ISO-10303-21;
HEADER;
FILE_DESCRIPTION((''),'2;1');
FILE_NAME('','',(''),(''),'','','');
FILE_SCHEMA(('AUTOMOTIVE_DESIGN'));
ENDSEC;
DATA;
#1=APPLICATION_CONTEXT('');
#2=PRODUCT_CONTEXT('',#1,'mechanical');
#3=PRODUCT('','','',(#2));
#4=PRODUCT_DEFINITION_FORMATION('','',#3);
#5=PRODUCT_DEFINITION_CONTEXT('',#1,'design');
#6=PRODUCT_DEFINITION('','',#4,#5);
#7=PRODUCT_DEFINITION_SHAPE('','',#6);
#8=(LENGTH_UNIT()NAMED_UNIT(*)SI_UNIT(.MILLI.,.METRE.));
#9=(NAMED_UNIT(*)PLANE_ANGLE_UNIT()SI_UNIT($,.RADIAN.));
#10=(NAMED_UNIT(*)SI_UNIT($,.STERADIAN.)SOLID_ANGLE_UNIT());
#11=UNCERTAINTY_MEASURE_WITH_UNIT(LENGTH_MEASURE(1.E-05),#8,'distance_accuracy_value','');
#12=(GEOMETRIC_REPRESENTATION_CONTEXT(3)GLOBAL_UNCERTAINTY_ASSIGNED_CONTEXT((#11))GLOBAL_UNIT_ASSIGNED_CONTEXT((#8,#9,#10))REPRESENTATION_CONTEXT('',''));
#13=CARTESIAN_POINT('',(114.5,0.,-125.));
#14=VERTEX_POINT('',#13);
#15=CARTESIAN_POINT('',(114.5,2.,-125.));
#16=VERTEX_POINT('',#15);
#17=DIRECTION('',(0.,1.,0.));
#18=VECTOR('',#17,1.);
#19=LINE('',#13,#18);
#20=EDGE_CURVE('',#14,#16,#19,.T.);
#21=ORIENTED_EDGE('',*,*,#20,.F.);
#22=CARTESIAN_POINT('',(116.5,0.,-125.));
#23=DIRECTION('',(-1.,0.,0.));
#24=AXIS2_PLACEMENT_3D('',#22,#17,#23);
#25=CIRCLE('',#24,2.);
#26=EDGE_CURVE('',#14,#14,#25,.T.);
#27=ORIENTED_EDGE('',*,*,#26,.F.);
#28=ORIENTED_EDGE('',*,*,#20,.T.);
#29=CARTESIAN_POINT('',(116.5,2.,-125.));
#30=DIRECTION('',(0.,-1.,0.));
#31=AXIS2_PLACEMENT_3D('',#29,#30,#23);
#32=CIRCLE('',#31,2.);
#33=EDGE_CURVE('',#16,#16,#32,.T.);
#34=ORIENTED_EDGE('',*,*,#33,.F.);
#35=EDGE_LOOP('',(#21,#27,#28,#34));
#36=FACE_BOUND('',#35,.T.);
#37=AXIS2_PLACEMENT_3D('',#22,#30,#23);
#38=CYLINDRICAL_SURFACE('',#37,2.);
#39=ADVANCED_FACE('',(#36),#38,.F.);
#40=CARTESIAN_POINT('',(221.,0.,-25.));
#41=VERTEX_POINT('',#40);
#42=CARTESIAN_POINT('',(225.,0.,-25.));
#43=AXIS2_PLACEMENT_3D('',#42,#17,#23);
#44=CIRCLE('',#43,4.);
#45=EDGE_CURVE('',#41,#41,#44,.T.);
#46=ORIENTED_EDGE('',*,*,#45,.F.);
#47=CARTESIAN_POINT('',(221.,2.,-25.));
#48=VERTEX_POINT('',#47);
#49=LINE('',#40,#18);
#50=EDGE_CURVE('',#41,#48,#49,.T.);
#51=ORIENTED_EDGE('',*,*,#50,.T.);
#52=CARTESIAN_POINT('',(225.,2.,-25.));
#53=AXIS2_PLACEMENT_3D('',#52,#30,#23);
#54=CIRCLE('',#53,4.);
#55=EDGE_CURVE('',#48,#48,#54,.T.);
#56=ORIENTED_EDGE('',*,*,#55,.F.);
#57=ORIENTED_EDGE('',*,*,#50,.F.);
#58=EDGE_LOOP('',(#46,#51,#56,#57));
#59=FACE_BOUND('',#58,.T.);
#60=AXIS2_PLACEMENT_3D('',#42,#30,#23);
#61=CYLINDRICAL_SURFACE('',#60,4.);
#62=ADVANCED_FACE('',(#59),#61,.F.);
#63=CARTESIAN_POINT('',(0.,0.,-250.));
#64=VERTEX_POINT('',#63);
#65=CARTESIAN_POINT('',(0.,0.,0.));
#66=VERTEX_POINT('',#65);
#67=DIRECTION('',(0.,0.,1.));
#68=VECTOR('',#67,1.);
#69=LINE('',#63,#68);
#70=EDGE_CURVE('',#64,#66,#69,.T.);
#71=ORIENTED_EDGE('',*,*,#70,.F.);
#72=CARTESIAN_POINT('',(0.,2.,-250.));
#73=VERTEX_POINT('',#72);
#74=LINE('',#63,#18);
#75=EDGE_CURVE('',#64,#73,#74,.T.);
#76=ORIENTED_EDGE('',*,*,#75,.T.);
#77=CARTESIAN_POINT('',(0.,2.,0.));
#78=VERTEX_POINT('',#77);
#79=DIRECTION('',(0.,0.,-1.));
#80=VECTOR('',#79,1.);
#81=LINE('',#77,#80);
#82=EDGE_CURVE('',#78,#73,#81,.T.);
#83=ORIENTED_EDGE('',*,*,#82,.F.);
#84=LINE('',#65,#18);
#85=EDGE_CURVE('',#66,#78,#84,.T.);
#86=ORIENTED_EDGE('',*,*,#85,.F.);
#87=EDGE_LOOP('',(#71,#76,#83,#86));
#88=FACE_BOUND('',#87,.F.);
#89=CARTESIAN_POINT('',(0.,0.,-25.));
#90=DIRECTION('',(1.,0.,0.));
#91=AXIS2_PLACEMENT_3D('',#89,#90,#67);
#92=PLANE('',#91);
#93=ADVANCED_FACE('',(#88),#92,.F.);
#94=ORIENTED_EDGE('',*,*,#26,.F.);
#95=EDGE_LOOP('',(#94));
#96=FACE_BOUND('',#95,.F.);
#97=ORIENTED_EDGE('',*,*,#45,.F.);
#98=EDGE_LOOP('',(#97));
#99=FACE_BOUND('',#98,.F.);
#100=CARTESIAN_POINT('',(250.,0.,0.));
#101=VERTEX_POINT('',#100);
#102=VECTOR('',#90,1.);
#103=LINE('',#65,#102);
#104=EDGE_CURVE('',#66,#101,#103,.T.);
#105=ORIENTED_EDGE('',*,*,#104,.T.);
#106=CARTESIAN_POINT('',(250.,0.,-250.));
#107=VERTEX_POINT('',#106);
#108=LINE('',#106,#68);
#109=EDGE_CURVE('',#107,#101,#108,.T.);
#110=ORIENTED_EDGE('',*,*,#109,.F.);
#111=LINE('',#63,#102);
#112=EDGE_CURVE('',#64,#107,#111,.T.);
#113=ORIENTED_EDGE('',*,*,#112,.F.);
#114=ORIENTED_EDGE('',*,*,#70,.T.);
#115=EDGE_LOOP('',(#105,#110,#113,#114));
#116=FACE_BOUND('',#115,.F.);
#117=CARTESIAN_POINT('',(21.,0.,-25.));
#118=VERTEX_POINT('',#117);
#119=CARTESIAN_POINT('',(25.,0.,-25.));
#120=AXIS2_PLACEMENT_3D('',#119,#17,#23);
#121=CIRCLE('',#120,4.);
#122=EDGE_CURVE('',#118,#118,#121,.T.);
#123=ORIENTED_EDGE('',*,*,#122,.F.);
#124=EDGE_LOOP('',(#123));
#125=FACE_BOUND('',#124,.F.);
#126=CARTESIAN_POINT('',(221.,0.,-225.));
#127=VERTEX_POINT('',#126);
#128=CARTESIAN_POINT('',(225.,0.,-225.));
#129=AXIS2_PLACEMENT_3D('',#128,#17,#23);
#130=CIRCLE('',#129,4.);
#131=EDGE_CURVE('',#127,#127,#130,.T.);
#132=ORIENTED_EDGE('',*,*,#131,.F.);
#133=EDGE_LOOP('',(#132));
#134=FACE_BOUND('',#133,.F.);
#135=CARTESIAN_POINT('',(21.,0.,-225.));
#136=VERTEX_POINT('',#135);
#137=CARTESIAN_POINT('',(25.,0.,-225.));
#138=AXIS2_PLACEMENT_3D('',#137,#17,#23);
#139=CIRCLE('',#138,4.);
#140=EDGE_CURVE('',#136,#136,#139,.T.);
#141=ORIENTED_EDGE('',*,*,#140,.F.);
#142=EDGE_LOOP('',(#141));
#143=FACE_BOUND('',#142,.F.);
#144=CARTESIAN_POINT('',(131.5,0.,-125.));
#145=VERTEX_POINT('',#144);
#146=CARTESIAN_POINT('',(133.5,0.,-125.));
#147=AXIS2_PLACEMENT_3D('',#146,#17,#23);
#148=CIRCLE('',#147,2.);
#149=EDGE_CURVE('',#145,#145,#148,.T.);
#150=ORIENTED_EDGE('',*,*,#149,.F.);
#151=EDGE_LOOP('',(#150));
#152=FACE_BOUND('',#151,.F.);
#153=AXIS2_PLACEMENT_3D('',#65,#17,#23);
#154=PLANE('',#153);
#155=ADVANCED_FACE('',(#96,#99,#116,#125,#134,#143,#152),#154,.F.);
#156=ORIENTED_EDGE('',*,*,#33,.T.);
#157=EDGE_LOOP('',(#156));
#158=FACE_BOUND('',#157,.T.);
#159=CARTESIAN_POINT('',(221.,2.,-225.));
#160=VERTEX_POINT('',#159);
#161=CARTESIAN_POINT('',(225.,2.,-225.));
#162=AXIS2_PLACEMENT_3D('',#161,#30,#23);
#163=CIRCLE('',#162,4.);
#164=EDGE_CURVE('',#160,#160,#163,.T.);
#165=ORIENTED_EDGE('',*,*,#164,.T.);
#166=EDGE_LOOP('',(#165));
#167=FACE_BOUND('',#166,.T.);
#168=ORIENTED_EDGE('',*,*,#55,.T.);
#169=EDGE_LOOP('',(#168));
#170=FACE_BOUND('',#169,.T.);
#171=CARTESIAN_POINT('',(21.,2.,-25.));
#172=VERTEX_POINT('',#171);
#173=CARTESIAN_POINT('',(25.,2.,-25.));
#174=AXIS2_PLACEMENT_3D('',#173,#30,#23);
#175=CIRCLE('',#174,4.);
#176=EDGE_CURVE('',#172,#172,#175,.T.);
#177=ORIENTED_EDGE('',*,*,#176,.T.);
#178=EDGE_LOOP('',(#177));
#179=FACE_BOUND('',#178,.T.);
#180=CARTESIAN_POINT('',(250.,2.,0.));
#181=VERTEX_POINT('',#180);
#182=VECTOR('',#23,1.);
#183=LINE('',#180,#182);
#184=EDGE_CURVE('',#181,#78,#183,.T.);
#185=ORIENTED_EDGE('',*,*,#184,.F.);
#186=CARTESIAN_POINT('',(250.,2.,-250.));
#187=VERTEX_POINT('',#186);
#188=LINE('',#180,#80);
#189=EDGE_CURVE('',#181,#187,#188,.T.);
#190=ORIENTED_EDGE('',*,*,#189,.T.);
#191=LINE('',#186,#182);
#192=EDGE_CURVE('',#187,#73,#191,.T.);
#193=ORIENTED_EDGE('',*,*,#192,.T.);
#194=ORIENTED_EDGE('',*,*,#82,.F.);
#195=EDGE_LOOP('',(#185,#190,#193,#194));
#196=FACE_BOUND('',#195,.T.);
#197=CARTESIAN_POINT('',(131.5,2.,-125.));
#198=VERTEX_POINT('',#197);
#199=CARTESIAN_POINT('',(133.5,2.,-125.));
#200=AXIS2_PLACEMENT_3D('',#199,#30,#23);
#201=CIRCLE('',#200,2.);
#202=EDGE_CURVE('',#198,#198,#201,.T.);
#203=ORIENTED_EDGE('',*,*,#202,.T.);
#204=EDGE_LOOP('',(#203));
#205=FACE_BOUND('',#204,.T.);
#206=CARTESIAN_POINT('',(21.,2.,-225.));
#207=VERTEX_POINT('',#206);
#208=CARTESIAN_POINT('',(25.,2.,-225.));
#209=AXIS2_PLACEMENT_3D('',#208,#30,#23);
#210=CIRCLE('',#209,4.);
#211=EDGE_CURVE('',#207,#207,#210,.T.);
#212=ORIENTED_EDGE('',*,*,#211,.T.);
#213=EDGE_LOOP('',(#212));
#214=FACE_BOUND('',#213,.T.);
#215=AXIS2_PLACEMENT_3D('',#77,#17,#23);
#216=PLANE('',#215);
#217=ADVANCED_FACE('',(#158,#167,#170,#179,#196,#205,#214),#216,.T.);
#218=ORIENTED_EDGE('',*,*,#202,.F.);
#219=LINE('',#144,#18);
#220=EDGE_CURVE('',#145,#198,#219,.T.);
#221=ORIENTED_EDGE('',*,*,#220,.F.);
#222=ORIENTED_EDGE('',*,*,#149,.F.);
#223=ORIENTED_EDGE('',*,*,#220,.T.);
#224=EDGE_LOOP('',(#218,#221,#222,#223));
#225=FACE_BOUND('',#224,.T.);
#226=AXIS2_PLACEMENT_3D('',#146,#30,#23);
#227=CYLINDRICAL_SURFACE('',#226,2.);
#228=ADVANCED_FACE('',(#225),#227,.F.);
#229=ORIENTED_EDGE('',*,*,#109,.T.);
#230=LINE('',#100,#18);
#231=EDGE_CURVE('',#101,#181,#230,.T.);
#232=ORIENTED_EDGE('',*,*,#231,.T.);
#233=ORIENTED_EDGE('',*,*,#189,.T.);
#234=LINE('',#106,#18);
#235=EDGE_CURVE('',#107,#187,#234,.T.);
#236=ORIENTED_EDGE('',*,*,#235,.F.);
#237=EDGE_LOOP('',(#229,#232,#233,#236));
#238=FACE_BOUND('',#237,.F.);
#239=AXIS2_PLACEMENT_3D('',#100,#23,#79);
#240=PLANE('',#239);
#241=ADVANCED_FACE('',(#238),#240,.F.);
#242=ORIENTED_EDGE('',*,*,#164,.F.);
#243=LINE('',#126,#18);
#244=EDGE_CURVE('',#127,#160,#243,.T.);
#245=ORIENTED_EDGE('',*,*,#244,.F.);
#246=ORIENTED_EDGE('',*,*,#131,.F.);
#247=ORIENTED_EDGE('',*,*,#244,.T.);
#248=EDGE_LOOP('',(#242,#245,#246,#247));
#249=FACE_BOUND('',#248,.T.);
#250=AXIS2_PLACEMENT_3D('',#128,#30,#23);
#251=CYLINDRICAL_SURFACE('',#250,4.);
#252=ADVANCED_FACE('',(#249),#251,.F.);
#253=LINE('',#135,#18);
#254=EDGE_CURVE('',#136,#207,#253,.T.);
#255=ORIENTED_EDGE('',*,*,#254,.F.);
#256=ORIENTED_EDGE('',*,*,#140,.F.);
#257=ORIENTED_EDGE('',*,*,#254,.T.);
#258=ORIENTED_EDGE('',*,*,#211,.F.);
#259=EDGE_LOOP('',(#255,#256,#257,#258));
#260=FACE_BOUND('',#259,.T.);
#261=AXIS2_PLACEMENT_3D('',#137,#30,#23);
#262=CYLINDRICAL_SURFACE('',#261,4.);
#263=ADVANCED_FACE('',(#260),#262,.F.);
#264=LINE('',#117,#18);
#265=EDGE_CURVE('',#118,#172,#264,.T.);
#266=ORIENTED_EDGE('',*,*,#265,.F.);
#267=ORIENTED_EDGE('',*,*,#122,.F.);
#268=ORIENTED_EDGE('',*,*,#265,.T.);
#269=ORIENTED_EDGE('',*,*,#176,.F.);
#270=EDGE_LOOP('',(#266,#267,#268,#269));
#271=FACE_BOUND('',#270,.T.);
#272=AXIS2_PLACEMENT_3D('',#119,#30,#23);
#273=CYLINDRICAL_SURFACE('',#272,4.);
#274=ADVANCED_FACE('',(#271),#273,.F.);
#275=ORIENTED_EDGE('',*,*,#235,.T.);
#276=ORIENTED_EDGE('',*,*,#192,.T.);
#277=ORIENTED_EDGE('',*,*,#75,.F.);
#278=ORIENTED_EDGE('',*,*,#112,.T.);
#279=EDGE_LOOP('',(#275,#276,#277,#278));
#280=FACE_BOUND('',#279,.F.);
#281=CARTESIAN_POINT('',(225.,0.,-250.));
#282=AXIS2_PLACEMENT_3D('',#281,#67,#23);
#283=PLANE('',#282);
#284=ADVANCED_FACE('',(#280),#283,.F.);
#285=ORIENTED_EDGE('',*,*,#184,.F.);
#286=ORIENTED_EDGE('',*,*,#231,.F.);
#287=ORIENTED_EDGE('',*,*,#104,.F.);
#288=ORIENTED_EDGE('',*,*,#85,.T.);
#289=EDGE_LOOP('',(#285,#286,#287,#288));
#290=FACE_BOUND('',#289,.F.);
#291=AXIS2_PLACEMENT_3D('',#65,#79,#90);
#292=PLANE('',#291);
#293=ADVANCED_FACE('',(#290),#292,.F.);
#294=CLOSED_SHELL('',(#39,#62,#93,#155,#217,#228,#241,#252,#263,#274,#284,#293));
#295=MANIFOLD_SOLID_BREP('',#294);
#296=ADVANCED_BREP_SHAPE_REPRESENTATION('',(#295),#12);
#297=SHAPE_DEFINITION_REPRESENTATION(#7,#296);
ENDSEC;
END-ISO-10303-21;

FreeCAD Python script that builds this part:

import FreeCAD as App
import Part
import Sketcher
Q = App.Units.Quantity


def add_polygon(sketch, points):
    """Adds a closed chain of lines whose ends are joined by coincident constraints."""
    first, n = sketch.GeometryCount, len(points)
    for a, b in zip(points, points[1:] + points[:1]):
        sketch.addGeometry(Part.LineSegment(App.Vector(*a, 0), App.Vector(*b, 0)), False)
    for i in range(n):
        sketch.addConstraint(Sketcher.Constraint("Coincident", first + i, 2, first + (i + 1) % n, 1))

doc = App.newDocument("Part")
body = doc.addObject("PartDesign::Body", "Body")

sketch1 = body.newObject("Sketcher::SketchObject", "Sketch")
sketch1.AttachmentSupport = (doc.getObject("XZ_Plane"), [""])
sketch1.MapMode = "FlatFace"
add_polygon(sketch1, [(0, 0), (250, 0), (250, -250), (0, -250)])
sketch1.addGeometry(Part.Circle(App.Vector(25, -25, 0), App.Vector(0, 0, 1), 4), False)
sketch1.addGeometry(Part.Circle(App.Vector(225, -25, 0), App.Vector(0, 0, 1), 4), False)
sketch1.addGeometry(Part.Circle(App.Vector(225, -225, 0), App.Vector(0, 0, 1), 4), False)
sketch1.addGeometry(Part.Circle(App.Vector(25, -225, 0), App.Vector(0, 0, 1), 4), False)
sketch1.addGeometry(Part.Circle(App.Vector(116.5, -125, 0), App.Vector(0, 0, 1), 2), False)
sketch1.addGeometry(Part.Circle(App.Vector(133.5, -125, 0), App.Vector(0, 0, 1), 2), False)
sketch1.addConstraint(Sketcher.Constraint("Horizontal", 0))
sketch1.addConstraint(Sketcher.Constraint("Vertical", 1))
sketch1.addConstraint(Sketcher.Constraint("Horizontal", 2))
sketch1.addConstraint(Sketcher.Constraint("Vertical", 3))
sketch1.addConstraint(Sketcher.Constraint("Coincident", 3, 2, -1, 1))
sketch1.addConstraint(Sketcher.Constraint("Equal", 4, 5))
sketch1.addConstraint(Sketcher.Constraint("Equal", 5, 6))
sketch1.addConstraint(Sketcher.Constraint("Equal", 6, 7))
sketch1.addConstraint(Sketcher.Constraint("Equal", 8, 9))
sketch1.addConstraint(Sketcher.Constraint("Horizontal", 4, 3, 5, 3))
sketch1.addConstraint(Sketcher.Constraint("Horizontal", 6, 3, 7, 3))
sketch1.addConstraint(Sketcher.Constraint("Horizontal", 8, 3, 9, 3))
sketch1.addConstraint(Sketcher.Constraint("Vertical", 5, 3, 6, 3))
sketch1.addConstraint(Sketcher.Constraint("Vertical", 4, 3, 7, 3))
sketch1.addConstraint(Sketcher.Constraint("Equal", 2, 1))
sketch1.addConstraint(Sketcher.Constraint("Diameter", 4, Q("8 mm")))
sketch1.addConstraint(Sketcher.Constraint("Diameter", 8, Q("4 mm")))
sketch1.addConstraint(Sketcher.Constraint("DistanceX", 0, 1, 0, 2, Q("250 mm")))
sketch1.addConstraint(Sketcher.Constraint("DistanceX", -1, 1, 4, 3, Q("25 mm")))
sketch1.addConstraint(Sketcher.Constraint("DistanceY", 4, 3, -1, 1, Q("25 mm")))
sketch1.addConstraint(Sketcher.Constraint("DistanceX", 8, 3, 9, 3, Q("17 mm")))
sketch1.addConstraint(Sketcher.Constraint("DistanceX", 5, 3, 0, 2, Q("25 mm")))
sketch1.addConstraint(Sketcher.Constraint("DistanceY", 1, 2, 6, 3, Q("25 mm")))
sketch1.addConstraint(Sketcher.Constraint("DistanceY", 8, 3, -1, 1, Q("125 mm")))
sketch1.addConstraint(Sketcher.Constraint("DistanceX", -1, 1, 8, 3, Q("116.5 mm")))
pad1 = body.newObject("PartDesign::Pad", "Pad")
pad1.Profile = sketch1
pad1.Length = 2
pad1.Reversed = True

doc.recompute()
